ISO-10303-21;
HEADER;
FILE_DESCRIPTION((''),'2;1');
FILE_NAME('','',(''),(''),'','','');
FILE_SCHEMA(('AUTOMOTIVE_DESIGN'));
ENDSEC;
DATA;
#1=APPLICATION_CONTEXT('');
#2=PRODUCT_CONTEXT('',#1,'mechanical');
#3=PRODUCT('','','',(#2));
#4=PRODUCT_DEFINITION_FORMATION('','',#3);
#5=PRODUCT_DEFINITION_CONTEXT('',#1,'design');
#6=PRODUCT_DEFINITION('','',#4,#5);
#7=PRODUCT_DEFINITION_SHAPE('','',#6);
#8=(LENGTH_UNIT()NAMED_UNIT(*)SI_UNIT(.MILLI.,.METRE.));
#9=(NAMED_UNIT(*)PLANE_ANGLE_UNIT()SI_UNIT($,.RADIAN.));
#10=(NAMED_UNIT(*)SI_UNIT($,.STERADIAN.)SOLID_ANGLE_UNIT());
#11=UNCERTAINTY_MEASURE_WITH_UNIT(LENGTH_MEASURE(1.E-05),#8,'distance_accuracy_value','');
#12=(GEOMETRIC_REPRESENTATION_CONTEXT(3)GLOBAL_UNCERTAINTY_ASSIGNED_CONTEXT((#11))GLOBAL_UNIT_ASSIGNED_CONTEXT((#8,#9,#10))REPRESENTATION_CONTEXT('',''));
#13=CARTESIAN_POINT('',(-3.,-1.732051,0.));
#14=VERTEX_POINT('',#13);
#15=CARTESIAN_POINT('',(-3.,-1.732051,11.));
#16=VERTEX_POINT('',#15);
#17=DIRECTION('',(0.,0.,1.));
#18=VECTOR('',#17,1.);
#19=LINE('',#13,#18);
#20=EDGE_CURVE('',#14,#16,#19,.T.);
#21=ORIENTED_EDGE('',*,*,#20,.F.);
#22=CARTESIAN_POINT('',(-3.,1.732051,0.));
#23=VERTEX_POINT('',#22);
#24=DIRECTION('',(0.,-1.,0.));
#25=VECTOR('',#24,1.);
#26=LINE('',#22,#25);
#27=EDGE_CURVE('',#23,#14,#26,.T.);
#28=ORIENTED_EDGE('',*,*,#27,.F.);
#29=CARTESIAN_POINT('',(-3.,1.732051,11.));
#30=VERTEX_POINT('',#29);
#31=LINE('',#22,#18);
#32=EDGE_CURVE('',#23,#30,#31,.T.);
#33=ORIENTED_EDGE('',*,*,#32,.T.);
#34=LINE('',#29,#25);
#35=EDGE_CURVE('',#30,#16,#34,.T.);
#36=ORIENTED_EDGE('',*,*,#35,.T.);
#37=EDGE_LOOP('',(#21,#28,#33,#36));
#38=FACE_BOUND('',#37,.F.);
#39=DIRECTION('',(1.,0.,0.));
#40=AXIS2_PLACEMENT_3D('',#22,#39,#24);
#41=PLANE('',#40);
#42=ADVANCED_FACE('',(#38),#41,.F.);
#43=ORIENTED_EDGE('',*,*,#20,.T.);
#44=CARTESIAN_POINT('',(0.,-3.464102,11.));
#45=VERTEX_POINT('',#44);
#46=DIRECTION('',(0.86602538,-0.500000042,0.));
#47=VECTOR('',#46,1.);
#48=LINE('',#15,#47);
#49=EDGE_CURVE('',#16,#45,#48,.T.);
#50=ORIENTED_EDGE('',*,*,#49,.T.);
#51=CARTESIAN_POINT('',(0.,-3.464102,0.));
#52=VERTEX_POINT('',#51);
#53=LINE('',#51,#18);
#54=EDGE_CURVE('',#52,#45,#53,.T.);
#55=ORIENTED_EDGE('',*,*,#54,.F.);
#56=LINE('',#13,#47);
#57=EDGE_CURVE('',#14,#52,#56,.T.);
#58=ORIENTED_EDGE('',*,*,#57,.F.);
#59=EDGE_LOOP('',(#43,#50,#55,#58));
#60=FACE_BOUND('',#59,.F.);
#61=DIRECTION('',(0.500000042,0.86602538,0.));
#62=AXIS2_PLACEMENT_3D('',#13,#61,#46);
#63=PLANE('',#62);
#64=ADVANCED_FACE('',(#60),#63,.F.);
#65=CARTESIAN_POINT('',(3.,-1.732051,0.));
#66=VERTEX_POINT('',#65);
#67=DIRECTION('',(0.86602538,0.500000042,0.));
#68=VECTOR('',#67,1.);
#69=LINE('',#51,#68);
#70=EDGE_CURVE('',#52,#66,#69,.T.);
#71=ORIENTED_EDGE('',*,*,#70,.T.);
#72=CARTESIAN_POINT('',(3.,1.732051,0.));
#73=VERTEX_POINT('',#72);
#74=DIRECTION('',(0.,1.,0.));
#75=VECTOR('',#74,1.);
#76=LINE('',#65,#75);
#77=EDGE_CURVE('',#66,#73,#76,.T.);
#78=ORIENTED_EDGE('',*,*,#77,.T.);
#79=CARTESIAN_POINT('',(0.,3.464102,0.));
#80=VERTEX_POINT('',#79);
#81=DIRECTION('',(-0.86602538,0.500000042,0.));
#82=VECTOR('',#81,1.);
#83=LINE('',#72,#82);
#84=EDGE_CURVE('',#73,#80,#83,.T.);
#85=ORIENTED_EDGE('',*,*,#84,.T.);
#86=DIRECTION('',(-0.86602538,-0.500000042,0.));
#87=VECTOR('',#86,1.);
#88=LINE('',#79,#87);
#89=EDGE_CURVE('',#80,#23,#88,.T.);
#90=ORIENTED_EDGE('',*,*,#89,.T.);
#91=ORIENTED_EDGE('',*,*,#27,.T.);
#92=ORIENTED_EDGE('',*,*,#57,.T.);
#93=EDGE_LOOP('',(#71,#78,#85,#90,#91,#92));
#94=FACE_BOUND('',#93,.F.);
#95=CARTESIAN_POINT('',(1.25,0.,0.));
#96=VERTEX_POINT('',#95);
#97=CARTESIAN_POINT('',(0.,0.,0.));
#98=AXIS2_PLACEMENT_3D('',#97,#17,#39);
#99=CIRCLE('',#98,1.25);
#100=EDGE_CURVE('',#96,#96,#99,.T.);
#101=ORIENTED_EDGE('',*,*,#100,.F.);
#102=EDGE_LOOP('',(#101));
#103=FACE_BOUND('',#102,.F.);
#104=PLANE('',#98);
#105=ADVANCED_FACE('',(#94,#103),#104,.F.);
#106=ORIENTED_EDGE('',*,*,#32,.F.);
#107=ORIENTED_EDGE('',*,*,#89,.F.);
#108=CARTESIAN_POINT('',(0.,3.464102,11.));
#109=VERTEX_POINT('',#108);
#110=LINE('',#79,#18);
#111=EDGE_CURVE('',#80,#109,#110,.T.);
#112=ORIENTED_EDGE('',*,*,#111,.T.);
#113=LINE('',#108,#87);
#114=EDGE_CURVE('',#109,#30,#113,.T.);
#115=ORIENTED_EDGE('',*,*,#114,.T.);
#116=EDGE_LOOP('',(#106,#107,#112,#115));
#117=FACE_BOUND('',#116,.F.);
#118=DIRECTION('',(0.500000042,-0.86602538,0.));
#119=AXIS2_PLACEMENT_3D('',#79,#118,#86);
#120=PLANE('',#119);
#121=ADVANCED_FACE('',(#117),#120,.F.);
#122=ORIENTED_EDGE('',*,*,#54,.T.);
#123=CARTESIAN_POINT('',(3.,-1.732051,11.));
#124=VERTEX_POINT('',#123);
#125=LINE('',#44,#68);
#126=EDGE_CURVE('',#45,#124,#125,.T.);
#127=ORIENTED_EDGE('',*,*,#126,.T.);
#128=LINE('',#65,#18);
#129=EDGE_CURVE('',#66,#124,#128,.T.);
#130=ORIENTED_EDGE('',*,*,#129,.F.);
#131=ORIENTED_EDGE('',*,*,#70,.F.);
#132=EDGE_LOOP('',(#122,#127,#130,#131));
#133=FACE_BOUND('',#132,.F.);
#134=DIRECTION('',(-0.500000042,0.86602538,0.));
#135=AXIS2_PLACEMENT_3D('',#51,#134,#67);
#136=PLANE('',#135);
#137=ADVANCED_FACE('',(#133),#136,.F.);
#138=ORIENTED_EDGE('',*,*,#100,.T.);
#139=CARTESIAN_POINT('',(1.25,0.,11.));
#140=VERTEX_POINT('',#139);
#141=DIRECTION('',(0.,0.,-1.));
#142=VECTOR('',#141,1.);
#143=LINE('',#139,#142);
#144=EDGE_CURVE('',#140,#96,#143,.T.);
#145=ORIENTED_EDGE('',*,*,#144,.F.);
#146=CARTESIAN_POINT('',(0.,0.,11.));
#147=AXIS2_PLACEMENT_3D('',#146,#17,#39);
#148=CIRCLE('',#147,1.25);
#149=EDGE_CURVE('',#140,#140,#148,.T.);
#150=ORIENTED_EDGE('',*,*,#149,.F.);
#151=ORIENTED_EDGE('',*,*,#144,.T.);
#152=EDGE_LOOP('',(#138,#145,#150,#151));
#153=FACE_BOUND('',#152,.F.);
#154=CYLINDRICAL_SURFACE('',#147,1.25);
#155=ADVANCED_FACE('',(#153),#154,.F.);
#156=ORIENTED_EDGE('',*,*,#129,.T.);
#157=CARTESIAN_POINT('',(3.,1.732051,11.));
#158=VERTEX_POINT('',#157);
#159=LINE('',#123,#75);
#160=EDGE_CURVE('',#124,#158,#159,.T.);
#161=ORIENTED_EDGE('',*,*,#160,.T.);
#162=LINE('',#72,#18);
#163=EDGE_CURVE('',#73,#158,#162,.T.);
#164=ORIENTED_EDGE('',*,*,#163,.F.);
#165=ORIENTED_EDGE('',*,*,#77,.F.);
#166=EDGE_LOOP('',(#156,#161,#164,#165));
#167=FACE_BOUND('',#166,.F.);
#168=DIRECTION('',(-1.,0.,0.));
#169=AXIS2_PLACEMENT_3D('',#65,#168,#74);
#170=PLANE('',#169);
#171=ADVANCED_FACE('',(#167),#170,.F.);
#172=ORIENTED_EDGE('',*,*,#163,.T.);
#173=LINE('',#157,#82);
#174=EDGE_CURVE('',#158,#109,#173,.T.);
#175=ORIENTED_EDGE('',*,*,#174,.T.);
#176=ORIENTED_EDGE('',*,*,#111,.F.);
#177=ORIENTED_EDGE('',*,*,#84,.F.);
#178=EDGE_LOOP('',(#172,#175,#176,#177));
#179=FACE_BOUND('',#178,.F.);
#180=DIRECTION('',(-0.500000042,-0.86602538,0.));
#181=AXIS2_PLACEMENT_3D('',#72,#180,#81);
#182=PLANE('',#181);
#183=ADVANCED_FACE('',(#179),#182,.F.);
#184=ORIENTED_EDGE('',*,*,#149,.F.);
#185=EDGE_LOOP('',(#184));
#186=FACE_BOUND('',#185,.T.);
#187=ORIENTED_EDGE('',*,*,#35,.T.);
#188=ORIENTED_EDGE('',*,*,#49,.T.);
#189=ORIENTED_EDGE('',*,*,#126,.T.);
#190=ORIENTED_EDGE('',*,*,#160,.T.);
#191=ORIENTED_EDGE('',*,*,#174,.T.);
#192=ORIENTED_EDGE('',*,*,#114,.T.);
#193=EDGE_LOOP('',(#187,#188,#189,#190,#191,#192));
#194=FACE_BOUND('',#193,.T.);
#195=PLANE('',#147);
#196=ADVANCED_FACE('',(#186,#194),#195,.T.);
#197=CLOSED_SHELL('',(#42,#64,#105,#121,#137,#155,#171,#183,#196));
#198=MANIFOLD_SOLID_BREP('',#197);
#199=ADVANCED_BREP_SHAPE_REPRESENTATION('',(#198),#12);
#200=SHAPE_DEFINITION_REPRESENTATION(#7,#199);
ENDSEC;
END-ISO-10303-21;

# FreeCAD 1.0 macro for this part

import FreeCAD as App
import Part
import Sketcher
from FreeCAD import Vector
Q = App.Units.Quantity


def add_polygon(sketch, points):
    """Adds a closed chain of lines whose ends are joined by coincident constraints."""
    first, n = sketch.GeometryCount, len(points)
    for a, b in zip(points, points[1:] + points[:1]):
        sketch.addGeometry(Part.LineSegment(App.Vector(*a, 0), App.Vector(*b, 0)), False)
    for i in range(n):
        sketch.addConstraint(Sketcher.Constraint("Coincident", first + i, 2, first + (i + 1) % n, 1))

doc = App.newDocument("Part")
body = doc.addObject("PartDesign::Body", "Body")

sketch1 = body.newObject("Sketcher::SketchObject", "Sketch")
sketch1.AttachmentSupport = (doc.getObject("XY_Plane"), [""])
sketch1.MapMode = "FlatFace"
add_polygon(sketch1, [(-3, -1.7), (0, -3.5), (3, -1.7), (3, 1.7), (0, 3.5), (-3, 1.7)])
sketch1.addConstraint([
    Sketcher.Constraint("Vertical", 2),
    Sketcher.Constraint("Vertical", 5),
    Sketcher.Constraint("Symmetric", 0, 2, 3, 2, -1, 1),
    Sketcher.Constraint("Symmetric", 1, 2, 4, 2, -1, 1),
    Sketcher.Constraint("PointOnObject", 0, 2, -2),
    Sketcher.Constraint("Parallel", 0, 3),
    Sketcher.Constraint("Horizontal", 2, 2, 4, 2),
    Sketcher.Constraint("Angle", 0, Q("-30.000003 deg")),
    Sketcher.Constraint("DistanceX", -1, 1, 1, 2, Q("3 mm")),
    Sketcher.Constraint("DistanceY", 2, 1, 2, 2, Q("3.464102 mm")),
])
pad1 = body.newObject("PartDesign::Pad", "Pad")
pad1.Profile = sketch1
pad1.Length = 11

sketch2 = body.newObject("Sketcher::SketchObject", "Sketch001")
sketch2.AttachmentSupport = (doc.getObject("XY_Plane"), [""])
sketch2.MapMode = "FlatFace"
sketch2.AttachmentOffset = App.Placement(Vector(0, 0, 11), App.Rotation())
sketch2.addGeometry(Part.Circle(Vector(0, 0, 0), Vector(0, 0, 1), 1.2), False)
sketch2.addConstraint([
    Sketcher.Constraint("Coincident", 0, 3, -1, 1),
    Sketcher.Constraint("Diameter", 0, Q("2.5 mm")),
])
pocket1 = body.newObject("PartDesign::Pocket", "Pocket")
pocket1.Profile = sketch2
pocket1.Type = "ThroughAll"

doc.recompute()
